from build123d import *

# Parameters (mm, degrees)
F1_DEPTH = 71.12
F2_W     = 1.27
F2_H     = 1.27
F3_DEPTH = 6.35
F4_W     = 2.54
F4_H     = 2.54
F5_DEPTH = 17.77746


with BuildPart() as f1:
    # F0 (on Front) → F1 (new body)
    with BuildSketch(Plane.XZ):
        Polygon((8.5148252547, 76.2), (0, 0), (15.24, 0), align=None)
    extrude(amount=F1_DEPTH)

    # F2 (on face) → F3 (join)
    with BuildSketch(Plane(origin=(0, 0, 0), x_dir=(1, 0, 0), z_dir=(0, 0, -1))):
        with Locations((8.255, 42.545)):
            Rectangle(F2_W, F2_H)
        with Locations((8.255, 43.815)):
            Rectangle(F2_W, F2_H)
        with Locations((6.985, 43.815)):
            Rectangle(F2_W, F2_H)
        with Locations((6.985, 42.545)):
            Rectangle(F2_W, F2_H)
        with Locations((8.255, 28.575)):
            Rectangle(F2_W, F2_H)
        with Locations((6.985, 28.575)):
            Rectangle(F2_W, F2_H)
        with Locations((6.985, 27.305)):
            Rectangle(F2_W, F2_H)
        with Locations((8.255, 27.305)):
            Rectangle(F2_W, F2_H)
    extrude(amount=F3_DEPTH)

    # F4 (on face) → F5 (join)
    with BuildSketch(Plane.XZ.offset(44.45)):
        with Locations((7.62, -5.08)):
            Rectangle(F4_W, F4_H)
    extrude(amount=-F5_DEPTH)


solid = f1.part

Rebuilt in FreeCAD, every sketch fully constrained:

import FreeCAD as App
import Part
import Sketcher

V = App.Vector
Q = App.Units.Quantity

doc = App.newDocument("Part")
body = doc.addObject("PartDesign::Body", "Body")

# Sketch on XZ plane
sketch1 = body.newObject("Sketcher::SketchObject", "Sketch")
sketch1.AttachmentSupport = (doc.getObject("XZ_Plane"), [""])
sketch1.MapMode = "FlatFace"
sketch1.addGeometry([
    Part.LineSegment(V(8.514825, 76.2, 0), V(0, 0, 0)),
    Part.LineSegment(V(0, 0, 0), V(15.24, 0, 0)),
    Part.LineSegment(V(15.24, 0, 0), V(8.514825, 76.2, 0)),
], False)
sketch1.addConstraint([
    Sketcher.Constraint("Coincident", 0, 2, 1, 1),
    Sketcher.Constraint("Coincident", 1, 2, 2, 1),
    Sketcher.Constraint("Coincident", 2, 2, 0, 1),
    Sketcher.Constraint("Horizontal", 1),
    Sketcher.Constraint("Coincident", 0, 2, -1, 1),
    Sketcher.Constraint("DistanceX", 1, 1, 1, 2, Q("0.6 in")),
    Sketcher.Constraint("DistanceY", -1, 1, 2, 2, Q("3 in")),
    Sketcher.Constraint("Distance", 0, 76.674261),
])
pad1 = body.newObject("PartDesign::Pad", "Pad")
pad1.Profile = sketch1
pad1.Length = Q("2.8 in")

# Sketch on XY plane
sketch2 = body.newObject("Sketcher::SketchObject", "Sketch001")
sketch2.AttachmentSupport = (doc.getObject("XY_Plane"), [""])
sketch2.MapMode = "FlatFace"
sketch2.addGeometry([
    Part.LineSegment(V(8.89, -41.91, 0), V(8.89, -44.45, 0)),  # 0
    Part.LineSegment(V(8.89, -44.45, 0), V(6.35, -44.45, 0)),  # 1
    Part.LineSegment(V(6.35, -44.45, 0), V(6.35, -41.91, 0)),  # 2
    Part.LineSegment(V(6.35, -41.91, 0), V(8.89, -41.91, 0)),  # 3
    Part.LineSegment(V(8.89, -29.21, 0), V(6.35, -29.21, 0)),  # 4
    Part.LineSegment(V(6.35, -29.21, 0), V(6.35, -26.67, 0)),  # 5
    Part.LineSegment(V(6.35, -26.67, 0), V(8.89, -26.67, 0)),  # 6
    Part.LineSegment(V(8.89, -26.67, 0), V(8.89, -29.21, 0)),  # 7
], False)
sketch2.addConstraint([
    Sketcher.Constraint("Coincident", 0, 2, 1, 1),
    Sketcher.Constraint("Coincident", 1, 2, 2, 1),
    Sketcher.Constraint("Coincident", 2, 2, 3, 1),
    Sketcher.Constraint("Coincident", 3, 2, 0, 1),
    Sketcher.Constraint("Coincident", 4, 2, 5, 1),
    Sketcher.Constraint("Coincident", 5, 2, 6, 1),
    Sketcher.Constraint("Coincident", 6, 2, 7, 1),
    Sketcher.Constraint("Coincident", 7, 2, 4, 1),
    Sketcher.Constraint("Vertical", 0),
    Sketcher.Constraint("Horizontal", 1),
    Sketcher.Constraint("Vertical", 2),
    Sketcher.Constraint("Horizontal", 3),
    Sketcher.Constraint("Horizontal", 4),
    Sketcher.Constraint("Vertical", 5),
    Sketcher.Constraint("Horizontal", 6),
    Sketcher.Constraint("Vertical", 7),
    Sketcher.Constraint("Vertical", 2, 2, 4, 2),
    Sketcher.Constraint("Vertical", 3, 2, 6, 2),
    Sketcher.Constraint("Equal", 6, 0),
    Sketcher.Constraint("Equal", 2, 5),
    Sketcher.Constraint("DistanceX", 1, 2, 1, 1, Q("0.1 in")),
    Sketcher.Constraint("DistanceY", 2, 2, 4, 2, Q("0.5 in")),
    Sketcher.Constraint("DistanceX", -1, 1, 0, 2, Q("0.35 in")),
    Sketcher.Constraint("DistanceY", 0, 2, -1, 1, Q("1.75 in")),
])
pad2 = body.newObject("PartDesign::Pad", "Pad001")
pad2.Profile = sketch2
pad2.Length = Q("0.25 in")
pad2.Reversed = True

# Sketch on XZ plane
sketch3 = body.newObject("Sketcher::SketchObject", "Sketch002")
sketch3.AttachmentSupport = (doc.getObject("XZ_Plane"), [""])
sketch3.MapMode = "FlatFace"
sketch3.AttachmentOffset = App.Placement(V(0, 0, 1.75 * 25.4), App.Rotation())
sketch3.addGeometry([
    Part.LineSegment(V(6.35, -3.81, 0), V(6.35, -6.35, 0)),
    Part.LineSegment(V(6.35, -6.35, 0), V(8.89, -6.35, 0)),
    Part.LineSegment(V(8.89, -6.35, 0), V(8.89, -3.81, 0)),
    Part.LineSegment(V(8.89, -3.81, 0), V(6.35, -3.81, 0)),
], False)
sketch3.addConstraint([
    Sketcher.Constraint("Coincident", 0, 2, 1, 1),
    Sketcher.Constraint("Coincident", 1, 2, 2, 1),
    Sketcher.Constraint("Coincident", 2, 2, 3, 1),
    Sketcher.Constraint("Coincident", 3, 2, 0, 1),
    Sketcher.Constraint("Vertical", 0),
    Sketcher.Constraint("Horizontal", 1),
    Sketcher.Constraint("Vertical", 2),
    Sketcher.Constraint("Horizontal", 3),
    Sketcher.Constraint("Equal", 3, 0),
    Sketcher.Constraint("DistanceX", 1, 1, 1, 2, Q("0.1 in")),
    Sketcher.Constraint("DistanceX", -1, 1, 0, 2, Q("0.25 in")),
    Sketcher.Constraint("DistanceY", 0, 2, -1, 1, Q("0.25 in")),
])
pad3 = body.newObject("PartDesign::Pad", "Pad002")
pad3.Profile = sketch3
pad3.Length = Q("0.6999 in")
pad3.Reversed = True

doc.recompute()
